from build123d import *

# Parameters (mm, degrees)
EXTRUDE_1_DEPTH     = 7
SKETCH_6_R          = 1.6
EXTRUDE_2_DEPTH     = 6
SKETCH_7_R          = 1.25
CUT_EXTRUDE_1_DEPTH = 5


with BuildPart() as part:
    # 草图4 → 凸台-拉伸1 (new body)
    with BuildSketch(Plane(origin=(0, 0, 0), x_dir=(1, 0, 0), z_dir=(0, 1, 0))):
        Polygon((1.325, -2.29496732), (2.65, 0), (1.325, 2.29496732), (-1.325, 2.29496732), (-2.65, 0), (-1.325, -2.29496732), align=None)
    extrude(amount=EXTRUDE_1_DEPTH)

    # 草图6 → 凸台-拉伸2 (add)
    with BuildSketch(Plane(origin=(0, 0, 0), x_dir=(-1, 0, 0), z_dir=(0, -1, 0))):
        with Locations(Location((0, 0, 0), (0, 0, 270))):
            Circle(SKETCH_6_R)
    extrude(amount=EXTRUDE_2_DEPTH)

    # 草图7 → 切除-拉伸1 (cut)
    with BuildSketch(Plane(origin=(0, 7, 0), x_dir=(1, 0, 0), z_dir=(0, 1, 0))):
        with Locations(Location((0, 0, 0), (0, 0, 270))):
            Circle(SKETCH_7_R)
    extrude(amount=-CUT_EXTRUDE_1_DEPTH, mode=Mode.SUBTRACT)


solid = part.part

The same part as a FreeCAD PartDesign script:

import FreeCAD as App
import Part
import Sketcher

V = App.Vector
Q = App.Units.Quantity


def add_polygon(sketch, points):
    """Adds a closed chain of lines whose ends are joined by coincident constraints."""
    first, n = sketch.GeometryCount, len(points)
    for a, b in zip(points, points[1:] + points[:1]):
        sketch.addGeometry(Part.LineSegment(App.Vector(*a, 0), App.Vector(*b, 0)), False)
    for i in range(n):
        sketch.addConstraint(Sketcher.Constraint("Coincident", first + i, 2, first + (i + 1) % n, 1))

doc = App.newDocument("Part")
body = doc.addObject("PartDesign::Body", "Body")

# Sketch on XZ plane
sketch1 = doc.addObject("Sketcher::SketchObject", "Sketch")
body.addObject(sketch1)
sketch1.AttachmentSupport = (doc.XZ_Plane, [""])
sketch1.MapMode = "FlatFace"
add_polygon(sketch1, [(1.3, 2.3), (2.6, 0), (1.3, -2.3), (-1.3, -2.3), (-2.6, 0), (-1.3, 2.3)])  # lines 0-5
sketch1.addConstraint([
    Sketcher.Constraint("Horizontal", 2),
    Sketcher.Constraint("Horizontal", 5),
    Sketcher.Constraint("Symmetric", 0, 2, 3, 2, -1, 1),
    Sketcher.Constraint("Symmetric", 1, 2, 4, 2, -1, 1),
    Sketcher.Constraint("PointOnObject", 0, 2, -1),
    Sketcher.Constraint("Parallel", 0, 3),
    Sketcher.Constraint("Vertical", 2, 2, 4, 2),
    Sketcher.Constraint("Angle", 0, Q("-60 deg")),
    Sketcher.Constraint("DistanceX", 2, 2, 2, 1, Q("2.65 mm")),
    Sketcher.Constraint("DistanceX", 3, 2, 0, 2, Q("5.3 mm")),
])
pad1 = doc.addObject("PartDesign::Pad", "Pad")
body.addObject(pad1)
pad1.Profile = sketch1
pad1.Length = 7
pad1.Reversed = True

# Sketch on XZ plane
sketch2 = doc.addObject("Sketcher::SketchObject", "Sketch001")
body.addObject(sketch2)
sketch2.AttachmentSupport = (doc.XZ_Plane, [""])
sketch2.MapMode = "FlatFace"
sketch2.addGeometry(Part.Circle(V(0, 0, 0), V(0, 0, 1), 1.6), False)
sketch2.addConstraint([
    Sketcher.Constraint("Coincident", 0, 3, -1, 1),
    Sketcher.Constraint("Diameter", 0, Q("3.2 mm")),
])
pad2 = doc.addObject("PartDesign::Pad", "Pad001")
body.addObject(pad2)
pad2.Profile = sketch2
pad2.Length = 6

# Sketch on XZ plane
sketch3 = doc.addObject("Sketcher::SketchObject", "Sketch002")
body.addObject(sketch3)
sketch3.AttachmentSupport = (doc.XZ_Plane, [""])
sketch3.MapMode = "FlatFace"
sketch3.AttachmentOffset = App.Placement(V(0, 0, -7), App.Rotation())
sketch3.addGeometry(Part.Circle(V(0, 0, 0), V(0, 0, 1), 1.2), False)
sketch3.addConstraint([
    Sketcher.Constraint("Coincident", 0, 3, -1, 1),
    Sketcher.Constraint("Diameter", 0, Q("2.5 mm")),
])
pocket1 = doc.addObject("PartDesign::Pocket", "Pocket")
body.addObject(pocket1)
pocket1.Profile = sketch3
pocket1.Length = 5
pocket1.Reversed = True

doc.recompute()
